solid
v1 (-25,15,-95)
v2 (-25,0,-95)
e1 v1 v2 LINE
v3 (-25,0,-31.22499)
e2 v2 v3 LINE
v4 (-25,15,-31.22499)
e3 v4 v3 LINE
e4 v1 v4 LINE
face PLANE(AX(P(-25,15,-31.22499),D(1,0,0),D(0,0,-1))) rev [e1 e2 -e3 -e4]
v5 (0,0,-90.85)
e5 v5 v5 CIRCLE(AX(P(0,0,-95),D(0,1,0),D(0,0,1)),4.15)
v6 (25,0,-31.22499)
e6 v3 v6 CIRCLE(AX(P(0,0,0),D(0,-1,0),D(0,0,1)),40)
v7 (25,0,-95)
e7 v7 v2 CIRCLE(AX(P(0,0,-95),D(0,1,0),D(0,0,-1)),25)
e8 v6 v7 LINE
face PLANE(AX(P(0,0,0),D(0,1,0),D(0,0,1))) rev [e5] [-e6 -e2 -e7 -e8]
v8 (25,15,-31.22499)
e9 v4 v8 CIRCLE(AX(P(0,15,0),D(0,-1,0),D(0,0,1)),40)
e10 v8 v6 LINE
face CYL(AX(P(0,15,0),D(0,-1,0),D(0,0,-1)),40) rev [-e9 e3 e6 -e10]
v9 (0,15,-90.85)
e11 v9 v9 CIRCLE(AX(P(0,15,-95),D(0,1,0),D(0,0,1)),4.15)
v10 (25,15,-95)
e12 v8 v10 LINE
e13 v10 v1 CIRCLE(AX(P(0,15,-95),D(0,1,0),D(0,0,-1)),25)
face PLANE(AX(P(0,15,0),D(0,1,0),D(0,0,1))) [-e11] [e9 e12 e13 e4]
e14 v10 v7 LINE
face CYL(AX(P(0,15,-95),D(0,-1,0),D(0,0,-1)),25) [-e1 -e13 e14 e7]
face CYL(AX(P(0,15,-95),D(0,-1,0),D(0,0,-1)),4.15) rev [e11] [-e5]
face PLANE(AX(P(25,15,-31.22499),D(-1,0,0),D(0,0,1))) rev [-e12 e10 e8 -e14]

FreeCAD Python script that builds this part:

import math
import FreeCAD as App
import Part
import Sketcher
from FreeCAD import Vector

doc = App.newDocument("Part")
params = doc.addObject("Spreadsheet::Sheet", "Params")
for row, (alias, value) in enumerate([
    ("sketch1_radius", "25 mm"),
    ("sketch1_radius2", "40 mm"),
    ("sketch1_diameter", "8.3 mm"),
    ("pad1_length", "15 mm"),
], start=1):
    params.set(f"A{row}", alias)
    params.set(f"B{row}", "=" + value)
    params.setAlias(f"B{row}", alias)

body = doc.addObject("PartDesign::Body", "Body")

# Sketch on XZ plane
sketch1 = body.newObject("Sketcher::SketchObject", "Sketch")
sketch1.AttachmentSupport = (doc.getObject("XZ_Plane"), [""])
sketch1.MapMode = "FlatFace"
sketch1.addGeometry([
    Part.LineSegment(Vector(25, -31.2, 0), Vector(25, -95, 0)),  # 0
    Part.ArcOfCircle(Part.Circle(Vector(0, -95, 0), Vector(0, 0, 1), 25), math.radians(180), math.radians(360)),  # 1
    Part.LineSegment(Vector(-25, -95, 0), Vector(-25, -31.2, 0)),  # 2
    Part.ArcOfCircle(Part.Circle(Vector(0, 0, 0), Vector(0, 0, 1), 40), math.radians(-129), math.radians(-51)),  # 3
    Part.Circle(Vector(0, -95, 0), Vector(0, 0, 1), 4.2),  # 4
], False)
sketch1.addConstraint([
    Sketcher.Constraint("Tangent", 0, 2, 1, 2),
    Sketcher.Constraint("Tangent", 1, 1, 2, 1),
    Sketcher.Constraint("Coincident", 2, 2, 3, 1),
    Sketcher.Constraint("Coincident", 3, 2, 0, 1),
    Sketcher.Constraint("Vertical", 0),
    Sketcher.Constraint("Vertical", 2),
    Sketcher.Constraint("Coincident", 3, 3, -1, 1),
    Sketcher.Constraint("Coincident", 4, 3, 1, 3),
    Sketcher.Constraint("PointOnObject", 1, 3, -2),
    Sketcher.Constraint("Radius", 1, 25.0),
    Sketcher.Constraint("Radius", 3, 40.0),
    Sketcher.Constraint("Diameter", 4, 8.3),
    Sketcher.Constraint("DistanceY", 1, 3, -1, 1, 95.0),
])
sketch1.setExpression("Constraints[9]", "Params.sketch1_radius")
sketch1.setExpression("Constraints[10]", "Params.sketch1_radius2")
sketch1.setExpression("Constraints[11]", "Params.sketch1_diameter")
pad1 = body.newObject("PartDesign::Pad", "Pad")
pad1.Profile = sketch1
pad1.setExpression("Length", "Params.pad1_length")
pad1.Reversed = True

doc.recompute()
